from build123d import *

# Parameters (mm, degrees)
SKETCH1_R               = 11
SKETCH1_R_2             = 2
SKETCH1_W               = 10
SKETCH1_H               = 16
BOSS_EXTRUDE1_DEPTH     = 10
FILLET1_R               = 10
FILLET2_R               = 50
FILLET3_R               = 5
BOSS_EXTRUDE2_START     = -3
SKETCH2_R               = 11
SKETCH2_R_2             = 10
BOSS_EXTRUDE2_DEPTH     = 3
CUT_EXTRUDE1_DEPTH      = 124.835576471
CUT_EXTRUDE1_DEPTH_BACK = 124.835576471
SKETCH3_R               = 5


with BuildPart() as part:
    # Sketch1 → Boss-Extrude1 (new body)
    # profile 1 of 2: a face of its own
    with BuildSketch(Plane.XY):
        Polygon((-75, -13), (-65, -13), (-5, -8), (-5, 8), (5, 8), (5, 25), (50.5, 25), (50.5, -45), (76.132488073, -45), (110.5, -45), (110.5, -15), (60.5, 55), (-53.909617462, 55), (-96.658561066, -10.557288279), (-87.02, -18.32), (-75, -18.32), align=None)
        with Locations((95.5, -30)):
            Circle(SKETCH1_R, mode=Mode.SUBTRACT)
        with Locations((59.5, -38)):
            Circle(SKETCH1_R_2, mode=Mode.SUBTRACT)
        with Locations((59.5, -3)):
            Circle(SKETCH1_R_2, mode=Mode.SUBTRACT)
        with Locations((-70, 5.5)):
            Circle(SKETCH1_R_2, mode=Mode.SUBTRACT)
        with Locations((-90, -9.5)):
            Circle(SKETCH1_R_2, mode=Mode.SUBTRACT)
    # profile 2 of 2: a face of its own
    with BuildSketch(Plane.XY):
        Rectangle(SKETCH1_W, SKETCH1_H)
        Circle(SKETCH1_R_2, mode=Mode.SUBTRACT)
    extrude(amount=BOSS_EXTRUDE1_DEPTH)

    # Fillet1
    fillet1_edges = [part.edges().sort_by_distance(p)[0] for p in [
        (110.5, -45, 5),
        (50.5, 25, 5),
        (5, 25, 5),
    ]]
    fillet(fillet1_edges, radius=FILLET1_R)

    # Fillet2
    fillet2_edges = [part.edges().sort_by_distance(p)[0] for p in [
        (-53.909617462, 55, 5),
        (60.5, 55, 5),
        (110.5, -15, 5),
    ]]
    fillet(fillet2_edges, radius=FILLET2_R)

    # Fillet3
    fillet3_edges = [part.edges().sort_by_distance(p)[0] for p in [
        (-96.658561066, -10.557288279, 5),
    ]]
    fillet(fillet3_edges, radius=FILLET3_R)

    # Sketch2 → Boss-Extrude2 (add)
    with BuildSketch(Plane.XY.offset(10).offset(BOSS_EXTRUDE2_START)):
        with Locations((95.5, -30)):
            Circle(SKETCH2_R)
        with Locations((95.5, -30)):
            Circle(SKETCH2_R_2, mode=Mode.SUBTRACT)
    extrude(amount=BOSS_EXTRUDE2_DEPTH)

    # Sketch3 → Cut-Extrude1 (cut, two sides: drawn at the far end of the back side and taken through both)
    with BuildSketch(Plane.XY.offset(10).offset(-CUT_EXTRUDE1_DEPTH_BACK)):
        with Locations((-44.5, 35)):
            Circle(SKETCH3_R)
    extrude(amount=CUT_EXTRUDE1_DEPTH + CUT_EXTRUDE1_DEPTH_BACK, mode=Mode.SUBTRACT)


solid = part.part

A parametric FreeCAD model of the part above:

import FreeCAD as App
import Part
import Sketcher
from FreeCAD import Vector


def edges_at(feature, points):
    """Names of the edges that pass closest to the given points."""
    edges = feature.Shape.Edges
    near = lambda p: min(range(len(edges)), key=lambda i: edges[i].distToShape(Part.Vertex(*p))[0])
    return sorted({f"Edge{near(p) + 1}" for p in points})


def add_polygon(sketch, points):
    """Adds a closed chain of lines whose ends are joined by coincident constraints."""
    first, n = sketch.GeometryCount, len(points)
    for a, b in zip(points, points[1:] + points[:1]):
        sketch.addGeometry(Part.LineSegment(App.Vector(*a, 0), App.Vector(*b, 0)), False)
    for i in range(n):
        sketch.addConstraint(Sketcher.Constraint("Coincident", first + i, 2, first + (i + 1) % n, 1))

doc = App.newDocument("Part")
body = doc.addObject("PartDesign::Body", "Body")

# Sketch on XY plane
sketch1 = doc.addObject("Sketcher::SketchObject", "Sketch")
body.addObject(sketch1)
sketch1.AttachmentSupport = (doc.XY_Plane, [""])
sketch1.MapMode = "FlatFace"
add_polygon(sketch1, [(-75, -13), (-65, -13), (-5, -8), (5, -8), (5, 25), (50.5, 25), (50.5, -45), (110.5, -45), (110.5, -15), (60.5, 55), (-53.909617, 55), (-96.658561, -10.557288), (-87.02, -18.32), (-75, -18.32)])  # lines 0-13
sketch1.addGeometry(Part.Circle(Vector(59.5, -38, 0), Vector(0, 0, 1), 2), False)  # 14
sketch1.addGeometry(Part.Circle(Vector(95.5, -30, 0), Vector(0, 0, 1), 11), False)  # 15
sketch1.addGeometry(Part.Circle(Vector(-90, -9.5, 0), Vector(0, 0, 1), 2), False)  # 16
sketch1.addGeometry(Part.Circle(Vector(-70, 5.5, 0), Vector(0, 0, 1), 2), False)  # 17
sketch1.addGeometry(Part.Circle(Vector(59.5, -3, 0), Vector(0, 0, 1), 2), False)  # 18
sketch1.addGeometry(Part.Circle(Vector(0, 0, 0), Vector(0, 0, 1), 2), False)  # 19
sketch1.addConstraint(Sketcher.Constraint("Horizontal", 0))
sketch1.addConstraint(Sketcher.Constraint("Horizontal", 2))
sketch1.addConstraint(Sketcher.Constraint("Vertical", 3))
sketch1.addConstraint(Sketcher.Constraint("Horizontal", 4))
sketch1.addConstraint(Sketcher.Constraint("Vertical", 5))
sketch1.addConstraint(Sketcher.Constraint("Horizontal", 6))
sketch1.addConstraint(Sketcher.Constraint("Vertical", 7))
sketch1.addConstraint(Sketcher.Constraint("Horizontal", 9))
sketch1.addConstraint(Sketcher.Constraint("Horizontal", 12))
sketch1.addConstraint(Sketcher.Constraint("Vertical", 13))
sketch1.addConstraint(Sketcher.Constraint("Coincident", 19, 3, -1, 1))
sketch1.addConstraint(Sketcher.Constraint("Equal", 14, 16))
sketch1.addConstraint(Sketcher.Constraint("Equal", 16, 17))
sketch1.addConstraint(Sketcher.Constraint("Equal", 17, 18))
sketch1.addConstraint(Sketcher.Constraint("Equal", 18, 19))
sketch1.addConstraint(Sketcher.Constraint("Vertical", 14, 3, 18, 3))
sketch1.addConstraint(Sketcher.Constraint("Equal", 0, 2))
sketch1.addConstraint(Sketcher.Constraint("Diameter", 14, 4.0))
sketch1.addConstraint(Sketcher.Constraint("Diameter", 15, 22.0))
sketch1.addConstraint(Sketcher.Constraint("DistanceX", 0, 1, 0, 2, 10.0))
sketch1.addConstraint(Sketcher.Constraint("DistanceX", 6, 1, 6, 2, 60.0))
sketch1.addConstraint(Sketcher.Constraint("DistanceY", 3, 1, 3, 2, 33.0))
sketch1.addConstraint(Sketcher.Constraint("DistanceY", 5, 2, 5, 1, 70.0))
sketch1.addConstraint(Sketcher.Constraint("DistanceY", 7, 1, 7, 2, 30.0))
sketch1.addConstraint(Sketcher.Constraint("DistanceX", 4, 1, 4, 2, 45.5))
sketch1.addConstraint(Sketcher.Constraint("DistanceY", 14, 3, -1, 1, 38.0))
sketch1.addConstraint(Sketcher.Constraint("DistanceY", 15, 3, -1, 1, 30.0))
sketch1.addConstraint(Sketcher.Constraint("DistanceX", 16, 3, -1, 1, 90.0))
sketch1.addConstraint(Sketcher.Constraint("DistanceX", 17, 3, -1, 1, 70.0))
sketch1.addConstraint(Sketcher.Constraint("DistanceY", 18, 3, -1, 1, 3.0))
sketch1.addConstraint(Sketcher.Constraint("DistanceX", 0, 2, -1, 1, 65.0))
sketch1.addConstraint(Sketcher.Constraint("DistanceY", 0, 2, -1, 1, 13.0))
sketch1.addConstraint(Sketcher.Constraint("DistanceX", 1, 2, -1, 1, 5.0))
sketch1.addConstraint(Sketcher.Constraint("DistanceY", 1, 2, -1, 1, 8.0))
sketch1.addConstraint(Sketcher.Constraint("DistanceY", -1, 1, 8, 2, 55.0))
sketch1.addConstraint(Sketcher.Constraint("DistanceX", 14, 3, 15, 3, 36.0))
sketch1.addConstraint(Sketcher.Constraint("DistanceY", 16, 3, 17, 3, 15.0))
sketch1.addConstraint(Sketcher.Constraint("DistanceX", 4, 2, 18, 3, 9.0))
sketch1.addConstraint(Sketcher.Constraint("DistanceX", 4, 2, 8, 2, 10.0))
sketch1.addConstraint(Sketcher.Constraint("DistanceX", 12, 1, 12, 2, 12.02))
sketch1.addConstraint(Sketcher.Constraint("DistanceY", 13, 1, 13, 2, 5.32))
sketch1.addConstraint(Sketcher.Constraint("DistanceY", 16, 3, -1, 1, 9.5))
sketch1.addConstraint(Sketcher.Constraint("Distance", 10, 78.26385))
sketch1.addConstraint(Sketcher.Constraint("DistanceX", 9, 2, 9, 1, 114.409617))
sketch1.addConstraint(Sketcher.Constraint("DistanceX", 10, 2, -1, 1, 96.658561))
pad1 = doc.addObject("PartDesign::Pad", "Pad")
body.addObject(pad1)
pad1.Profile = sketch1
pad1.Length = 10
doc.recompute()

fillet = doc.addObject("PartDesign::Fillet", "Fillet")
body.addObject(fillet)
fillet.Base = (pad1, edges_at(pad1, [(110.5, -45, 5), (50.5, 25, 5), (5, 25, 5)]))
fillet.Radius = 10
doc.recompute()

fillet2 = doc.addObject("PartDesign::Fillet", "Fillet001")
body.addObject(fillet2)
fillet2.Base = (fillet, edges_at(fillet, [(-53.91, 55, 5), (60.5, 55, 5), (110.5, -15, 5)]))
fillet2.Radius = 50
doc.recompute()

fillet3 = doc.addObject("PartDesign::Fillet", "Fillet002")
body.addObject(fillet3)
fillet3.Base = (fillet2, edges_at(fillet2, [(-96.659, -10.557, 5)]))
fillet3.Radius = 5

# Sketch on XY plane
sketch2 = doc.addObject("Sketcher::SketchObject", "Sketch001")
body.addObject(sketch2)
sketch2.AttachmentSupport = (doc.XY_Plane, [""])
sketch2.MapMode = "FlatFace"
sketch2.AttachmentOffset = App.Placement(Vector(0, 0, 7), App.Rotation())
sketch2.addGeometry(Part.Circle(Vector(95.5, -30, 0), Vector(0, 0, 1), 11), False)
sketch2.addGeometry(Part.Circle(Vector(95.5, -30, 0), Vector(0, 0, 1), 10), False)
sketch2.addConstraint(Sketcher.Constraint("Coincident", 1, 3, 0, 3))
sketch2.addConstraint(Sketcher.Constraint("Diameter", 0, 22.0))
sketch2.addConstraint(Sketcher.Constraint("Diameter", 1, 20.0))
sketch2.addConstraint(Sketcher.Constraint("DistanceY", 0, 3, -1, 1, 30.0))
sketch2.addConstraint(Sketcher.Constraint("DistanceX", -1, 1, 0, 3, 95.5))
pad2 = doc.addObject("PartDesign::Pad", "Pad001")
body.addObject(pad2)
pad2.Profile = sketch2
pad2.Length = 3

# Sketch on XY plane
sketch3 = doc.addObject("Sketcher::SketchObject", "Sketch002")
body.addObject(sketch3)
sketch3.AttachmentSupport = (doc.XY_Plane, [""])
sketch3.MapMode = "FlatFace"
sketch3.AttachmentOffset = App.Placement(Vector(0, 0, 10), App.Rotation())
sketch3.addGeometry(Part.Circle(Vector(-44.5, 35, 0), Vector(0, 0, 1), 5), False)
sketch3.addConstraint(Sketcher.Constraint("Diameter", 0, 10.0))
sketch3.addConstraint(Sketcher.Constraint("DistanceY", -1, 1, 0, 3, 35.0))
sketch3.addConstraint(Sketcher.Constraint("DistanceX", 0, 3, -1, 1, 44.5))
pocket1 = doc.addObject("PartDesign::Pocket", "Pocket")
body.addObject(pocket1)
pocket1.Profile = sketch3
pocket1.Type = "ThroughAll"
pocket1.Midplane = True

doc.recompute()
